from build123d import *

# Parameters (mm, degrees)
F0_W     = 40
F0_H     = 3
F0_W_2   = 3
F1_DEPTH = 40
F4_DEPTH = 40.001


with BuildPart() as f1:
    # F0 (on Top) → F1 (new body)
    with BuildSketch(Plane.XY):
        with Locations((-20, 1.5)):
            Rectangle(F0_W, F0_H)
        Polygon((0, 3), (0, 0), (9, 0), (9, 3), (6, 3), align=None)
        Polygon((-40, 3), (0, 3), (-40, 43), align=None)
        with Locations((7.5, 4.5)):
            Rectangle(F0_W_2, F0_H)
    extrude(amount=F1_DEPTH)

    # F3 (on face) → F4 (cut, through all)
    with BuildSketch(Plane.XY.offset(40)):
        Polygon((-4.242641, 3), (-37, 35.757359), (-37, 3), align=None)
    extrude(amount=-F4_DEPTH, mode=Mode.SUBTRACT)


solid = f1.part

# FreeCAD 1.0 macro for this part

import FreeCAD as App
import Part
import Sketcher
from FreeCAD import Vector
Q = App.Units.Quantity

doc = App.newDocument("Part")
body = doc.addObject("PartDesign::Body", "Body")

sketch1 = doc.addObject("Sketcher::SketchObject", "Sketch")
body.addObject(sketch1)
sketch1.AttachmentSupport = (doc.XY_Plane, [""])
sketch1.MapMode = "FlatFace"
sketch1.addGeometry([
    Part.LineSegment(Vector(-40, 0, 0), Vector(9, 0, 0)),
    Part.LineSegment(Vector(9, 0, 0), Vector(9, 6, 0)),
    Part.LineSegment(Vector(9, 6, 0), Vector(6, 6, 0)),
    Part.LineSegment(Vector(6, 6, 0), Vector(6, 3, 0)),
    Part.LineSegment(Vector(6, 3, 0), Vector(0, 3, 0)),
    Part.LineSegment(Vector(0, 3, 0), Vector(-40, 43, 0)),
    Part.LineSegment(Vector(-40, 43, 0), Vector(-40, 0, 0)),
], False)
sketch1.addConstraint([
    Sketcher.Constraint("Coincident", 0, 2, 1, 1),
    Sketcher.Constraint("Coincident", 1, 2, 2, 1),
    Sketcher.Constraint("Coincident", 2, 2, 3, 1),
    Sketcher.Constraint("Coincident", 3, 2, 4, 1),
    Sketcher.Constraint("Coincident", 4, 2, 5, 1),
    Sketcher.Constraint("Coincident", 5, 2, 6, 1),
    Sketcher.Constraint("Coincident", 6, 2, 0, 1),
    Sketcher.Constraint("Horizontal", 0),
    Sketcher.Constraint("Vertical", 1),
    Sketcher.Constraint("Horizontal", 2),
    Sketcher.Constraint("Vertical", 3),
    Sketcher.Constraint("Horizontal", 4),
    Sketcher.Constraint("Vertical", 6),
    Sketcher.Constraint("PointOnObject", 0, 2, -1),
    Sketcher.Constraint("PointOnObject", 4, 2, -2),
    Sketcher.Constraint("Equal", 4, 1),
    Sketcher.Constraint("Equal", 2, 3),
    Sketcher.Constraint("DistanceX", 0, 1, 0, 2, Q("49 mm")),
    Sketcher.Constraint("DistanceX", 2, 2, 2, 1, Q("3 mm")),
    Sketcher.Constraint("DistanceX", 4, 2, 4, 1, Q("6 mm")),
    Sketcher.Constraint("DistanceY", 6, 2, 6, 1, Q("43 mm")),
])
pad1 = doc.addObject("PartDesign::Pad", "Pad")
body.addObject(pad1)
pad1.Profile = sketch1
pad1.Length = 40

sketch2 = doc.addObject("Sketcher::SketchObject", "Sketch001")
body.addObject(sketch2)
sketch2.AttachmentSupport = (doc.XY_Plane, [""])
sketch2.MapMode = "FlatFace"
sketch2.AttachmentOffset = App.Placement(Vector(0, 0, 40), App.Rotation())
sketch2.addGeometry([
    Part.LineSegment(Vector(-4, 3, 0), Vector(-37, 36, 0)),
    Part.LineSegment(Vector(-37, 36, 0), Vector(-37, 3, 0)),
    Part.LineSegment(Vector(-37, 3, 0), Vector(-4, 3, 0)),
], False)
sketch2.addConstraint([
    Sketcher.Constraint("Coincident", 0, 2, 1, 1),
    Sketcher.Constraint("Coincident", 1, 2, 2, 1),
    Sketcher.Constraint("Coincident", 2, 2, 0, 1),
    Sketcher.Constraint("Vertical", 1),
    Sketcher.Constraint("Horizontal", 2),
    Sketcher.Constraint("Equal", 2, 1),
    Sketcher.Constraint("DistanceX", 0, 2, -1, 1, Q("37 mm")),
    Sketcher.Constraint("DistanceY", -1, 1, 1, 2, Q("3 mm")),
    Sketcher.Constraint("Distance", 0, Q("46.325901 mm")),
])
pocket1 = doc.addObject("PartDesign::Pocket", "Pocket")
body.addObject(pocket1)
pocket1.Profile = sketch2
pocket1.Type = "ThroughAll"

doc.recompute()
